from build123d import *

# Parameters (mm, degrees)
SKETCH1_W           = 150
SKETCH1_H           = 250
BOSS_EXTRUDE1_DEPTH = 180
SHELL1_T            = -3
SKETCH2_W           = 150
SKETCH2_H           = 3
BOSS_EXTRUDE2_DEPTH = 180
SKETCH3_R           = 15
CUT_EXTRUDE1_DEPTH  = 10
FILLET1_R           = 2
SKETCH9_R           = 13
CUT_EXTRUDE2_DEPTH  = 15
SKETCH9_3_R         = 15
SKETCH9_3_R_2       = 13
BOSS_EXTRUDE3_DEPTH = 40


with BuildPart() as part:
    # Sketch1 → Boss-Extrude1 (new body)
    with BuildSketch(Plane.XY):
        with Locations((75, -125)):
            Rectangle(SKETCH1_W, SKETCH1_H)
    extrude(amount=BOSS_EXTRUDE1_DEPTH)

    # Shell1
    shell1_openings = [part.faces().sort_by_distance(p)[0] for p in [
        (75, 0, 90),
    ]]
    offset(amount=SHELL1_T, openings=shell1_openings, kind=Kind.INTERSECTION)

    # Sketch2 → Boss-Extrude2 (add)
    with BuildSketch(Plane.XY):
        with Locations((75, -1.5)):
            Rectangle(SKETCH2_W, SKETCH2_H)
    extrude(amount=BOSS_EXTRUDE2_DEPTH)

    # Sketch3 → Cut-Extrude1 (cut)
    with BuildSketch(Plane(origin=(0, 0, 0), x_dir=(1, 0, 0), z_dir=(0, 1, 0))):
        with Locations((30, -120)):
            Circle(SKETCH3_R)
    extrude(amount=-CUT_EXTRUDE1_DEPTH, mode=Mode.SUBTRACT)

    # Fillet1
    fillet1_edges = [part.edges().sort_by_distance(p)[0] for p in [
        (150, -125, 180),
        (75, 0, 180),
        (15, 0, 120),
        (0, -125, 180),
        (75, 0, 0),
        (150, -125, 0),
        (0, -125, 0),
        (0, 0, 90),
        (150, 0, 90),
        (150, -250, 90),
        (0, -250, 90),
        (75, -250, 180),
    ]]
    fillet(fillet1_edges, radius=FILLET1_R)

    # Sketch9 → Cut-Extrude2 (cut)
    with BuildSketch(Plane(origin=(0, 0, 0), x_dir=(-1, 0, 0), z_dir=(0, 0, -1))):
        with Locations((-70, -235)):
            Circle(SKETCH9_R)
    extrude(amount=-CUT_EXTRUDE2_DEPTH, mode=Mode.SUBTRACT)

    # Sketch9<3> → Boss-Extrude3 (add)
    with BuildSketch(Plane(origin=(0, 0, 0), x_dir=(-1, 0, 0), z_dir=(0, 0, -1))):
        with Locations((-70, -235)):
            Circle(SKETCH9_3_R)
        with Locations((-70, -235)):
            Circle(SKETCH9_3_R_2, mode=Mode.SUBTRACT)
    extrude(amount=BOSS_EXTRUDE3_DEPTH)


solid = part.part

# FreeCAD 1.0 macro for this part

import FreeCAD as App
import Part
import Sketcher
from FreeCAD import Vector
Q = App.Units.Quantity


def edges_at(feature, points):
    """Names of the edges that pass closest to the given points."""
    edges = feature.Shape.Edges
    near = lambda p: min(range(len(edges)), key=lambda i: edges[i].distToShape(Part.Vertex(*p))[0])
    return sorted({f"Edge{near(p) + 1}" for p in points})


def faces_at(feature, points):
    """Names of the faces that lie closest to the given points."""
    faces = feature.Shape.Faces
    near = lambda p: min(range(len(faces)), key=lambda i: faces[i].distToShape(Part.Vertex(*p))[0])
    return sorted({f"Face{near(p) + 1}" for p in points})

doc = App.newDocument("Part")
body = doc.addObject("PartDesign::Body", "Body")

# Sketch on XY plane
sketch1 = doc.addObject("Sketcher::SketchObject", "Sketch")
body.addObject(sketch1)
sketch1.AttachmentSupport = (doc.XY_Plane, [""])
sketch1.MapMode = "FlatFace"
sketch1.addGeometry([
    Part.LineSegment(Vector(0, 0, 0), Vector(0, -250, 0)),
    Part.LineSegment(Vector(0, -250, 0), Vector(150, -250, 0)),
    Part.LineSegment(Vector(150, -250, 0), Vector(150, 0, 0)),
    Part.LineSegment(Vector(150, 0, 0), Vector(0, 0, 0)),
], False)
sketch1.addConstraint([
    Sketcher.Constraint("Coincident", 0, 2, 1, 1),
    Sketcher.Constraint("Coincident", 1, 2, 2, 1),
    Sketcher.Constraint("Coincident", 2, 2, 3, 1),
    Sketcher.Constraint("Coincident", 3, 2, 0, 1),
    Sketcher.Constraint("Vertical", 0),
    Sketcher.Constraint("Horizontal", 1),
    Sketcher.Constraint("Vertical", 2),
    Sketcher.Constraint("Horizontal", 3),
    Sketcher.Constraint("Coincident", 3, 2, -1, 1),
    Sketcher.Constraint("DistanceX", 1, 1, 1, 2, Q("150 mm")),
    Sketcher.Constraint("DistanceY", 0, 2, 0, 1, Q("250 mm")),
])
pad1 = doc.addObject("PartDesign::Pad", "Pad")
body.addObject(pad1)
pad1.Profile = sketch1
pad1.Length = 180
doc.recompute()

thickness = doc.addObject("PartDesign::Thickness", "Thickness")
body.addObject(thickness)
thickness.Base = (pad1, faces_at(pad1, [(75, 0, 90)]))
thickness.Value = 3
thickness.Reversed = True
thickness.Join = "Intersection"

# Sketch on XY plane
sketch2 = doc.addObject("Sketcher::SketchObject", "Sketch001")
body.addObject(sketch2)
sketch2.AttachmentSupport = (doc.XY_Plane, [""])
sketch2.MapMode = "FlatFace"
sketch2.addGeometry([
    Part.LineSegment(Vector(0, 0, 0), Vector(0, -3, 0)),
    Part.LineSegment(Vector(0, -3, 0), Vector(150, -3, 0)),
    Part.LineSegment(Vector(150, -3, 0), Vector(150, 0, 0)),
    Part.LineSegment(Vector(150, 0, 0), Vector(0, 0, 0)),
], False)
sketch2.addConstraint([
    Sketcher.Constraint("Coincident", 0, 2, 1, 1),
    Sketcher.Constraint("Coincident", 1, 2, 2, 1),
    Sketcher.Constraint("Coincident", 2, 2, 3, 1),
    Sketcher.Constraint("Coincident", 3, 2, 0, 1),
    Sketcher.Constraint("Vertical", 0),
    Sketcher.Constraint("Horizontal", 1),
    Sketcher.Constraint("Vertical", 2),
    Sketcher.Constraint("Horizontal", 3),
    Sketcher.Constraint("Coincident", 3, 2, -1, 1),
    Sketcher.Constraint("DistanceX", 1, 1, 1, 2, Q("150 mm")),
    Sketcher.Constraint("DistanceY", 0, 2, 0, 1, Q("3 mm")),
])
pad2 = doc.addObject("PartDesign::Pad", "Pad001")
body.addObject(pad2)
pad2.Profile = sketch2
pad2.Length = 180

# Sketch on XZ plane
sketch3 = doc.addObject("Sketcher::SketchObject", "Sketch002")
body.addObject(sketch3)
sketch3.AttachmentSupport = (doc.XZ_Plane, [""])
sketch3.MapMode = "FlatFace"
sketch3.addGeometry(Part.Circle(Vector(30, 120, 0), Vector(0, 0, 1), 15), False)
sketch3.addConstraint([
    Sketcher.Constraint("Diameter", 0, Q("30 mm")),
    Sketcher.Constraint("DistanceX", -1, 1, 0, 3, Q("30 mm")),
    Sketcher.Constraint("DistanceY", -1, 1, 0, 3, Q("120 mm")),
])
pocket1 = doc.addObject("PartDesign::Pocket", "Pocket")
body.addObject(pocket1)
pocket1.Profile = sketch3
pocket1.Length = 10
pocket1.Reversed = True
doc.recompute()

fillet = doc.addObject("PartDesign::Fillet", "Fillet")
body.addObject(fillet)
fillet.Base = (pocket1, edges_at(pocket1, [
    (150, -125, 180),
    (75, 0, 180),
    (15, 0, 120),
    (0, -125, 180),
    (75, 0, 0),
    (150, -125, 0),
    (0, -125, 0),
    (0, 0, 90),
    (150, 0, 90),
    (150, -250, 90),
    (0, -250, 90),
    (75, -250, 180),
]))
fillet.Radius = 2

# Sketch on XY plane
sketch4 = doc.addObject("Sketcher::SketchObject", "Sketch003")
body.addObject(sketch4)
sketch4.AttachmentSupport = (doc.XY_Plane, [""])
sketch4.MapMode = "FlatFace"
sketch4.addGeometry(Part.Circle(Vector(70, -235, 0), Vector(0, 0, 1), 13), False)
sketch4.addConstraint([
    Sketcher.Constraint("Diameter", 0, Q("26 mm")),
    Sketcher.Constraint("DistanceX", -1, 1, 0, 3, Q("70 mm")),
    Sketcher.Constraint("DistanceY", 0, 3, -1, 1, Q("235 mm")),
])
pocket2 = doc.addObject("PartDesign::Pocket", "Pocket001")
body.addObject(pocket2)
pocket2.Profile = sketch4
pocket2.Length = 15
pocket2.Reversed = True

# Sketch on XY plane
sketch5 = doc.addObject("Sketcher::SketchObject", "Sketch004")
body.addObject(sketch5)
sketch5.AttachmentSupport = (doc.XY_Plane, [""])
sketch5.MapMode = "FlatFace"
sketch5.addGeometry([
    Part.Circle(Vector(70, -235, 0), Vector(0, 0, 1), 15),
    Part.Circle(Vector(70, -235, 0), Vector(0, 0, 1), 13),
], False)
sketch5.addConstraint([
    Sketcher.Constraint("Coincident", 1, 3, 0, 3),
    Sketcher.Constraint("Diameter", 0, Q("30 mm")),
    Sketcher.Constraint("Diameter", 1, Q("26 mm")),
    Sketcher.Constraint("DistanceX", -1, 1, 0, 3, Q("70 mm")),
    Sketcher.Constraint("DistanceY", 0, 3, -1, 1, Q("235 mm")),
])
pad3 = doc.addObject("PartDesign::Pad", "Pad002")
body.addObject(pad3)
pad3.Profile = sketch5
pad3.Length = 40
pad3.Reversed = True

doc.recompute()
